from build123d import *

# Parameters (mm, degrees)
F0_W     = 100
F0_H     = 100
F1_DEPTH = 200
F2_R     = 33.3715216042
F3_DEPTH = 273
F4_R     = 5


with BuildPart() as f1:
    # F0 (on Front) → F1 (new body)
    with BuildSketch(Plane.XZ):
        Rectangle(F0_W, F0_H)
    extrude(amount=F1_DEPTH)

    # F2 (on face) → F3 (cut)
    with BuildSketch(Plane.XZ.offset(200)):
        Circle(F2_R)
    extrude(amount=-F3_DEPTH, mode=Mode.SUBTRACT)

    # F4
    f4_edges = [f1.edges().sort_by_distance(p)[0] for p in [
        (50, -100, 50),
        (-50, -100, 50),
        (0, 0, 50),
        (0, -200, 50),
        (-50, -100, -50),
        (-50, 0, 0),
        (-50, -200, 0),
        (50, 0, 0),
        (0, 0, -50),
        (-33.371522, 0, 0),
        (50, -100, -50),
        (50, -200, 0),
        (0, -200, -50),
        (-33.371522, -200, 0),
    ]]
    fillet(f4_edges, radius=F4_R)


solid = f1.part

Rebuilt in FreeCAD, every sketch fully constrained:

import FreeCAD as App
import Part
import Sketcher
from FreeCAD import Vector
Q = App.Units.Quantity


def add_polygon(sketch, points):
    """Adds a closed chain of lines whose ends are joined by coincident constraints."""
    first, n = sketch.GeometryCount, len(points)
    for a, b in zip(points, points[1:] + points[:1]):
        sketch.addGeometry(Part.LineSegment(App.Vector(*a, 0), App.Vector(*b, 0)), False)
    for i in range(n):
        sketch.addConstraint(Sketcher.Constraint("Coincident", first + i, 2, first + (i + 1) % n, 1))

doc = App.newDocument("Part")
params = doc.addObject("Spreadsheet::Sheet", "Params")
for row, (alias, value) in enumerate([
    ("sketch1_width", "100 mm"),
    ("pad1_length", "200 mm"),
    ("pocket1_length", "273 mm"),
    ("fillet_radius", "5 mm"),
], start=1):
    params.set(f"A{row}", alias)
    params.set(f"B{row}", "=" + value)
    params.setAlias(f"B{row}", alias)

body = doc.addObject("PartDesign::Body", "Body")

# Sketch on XZ plane
sketch1 = body.newObject("Sketcher::SketchObject", "Sketch")
sketch1.AttachmentSupport = (doc.getObject("XZ_Plane"), [""])
sketch1.MapMode = "FlatFace"
add_polygon(sketch1, [(-50, 50), (-50, -50), (50, -50), (50, 50)])  # lines 0-3
sketch1.addConstraint(Sketcher.Constraint("Vertical", 0))
sketch1.addConstraint(Sketcher.Constraint("Horizontal", 1))
sketch1.addConstraint(Sketcher.Constraint("Vertical", 2))
sketch1.addConstraint(Sketcher.Constraint("Horizontal", 3))
sketch1.addConstraint(Sketcher.Constraint("Symmetric", 0, 2, 2, 2, -1, 1))
sketch1.addConstraint(Sketcher.Constraint("Equal", 3, 0))
sketch1.addConstraint(Sketcher.Constraint("DistanceX", 1, 1, 1, 2, Q("100 mm")))
sketch1.setExpression("Constraints[10]", "Params.sketch1_width")
pad1 = body.newObject("PartDesign::Pad", "Pad")
pad1.Profile = sketch1
pad1.setExpression("Length", "Params.pad1_length")

# Sketch on XZ plane
sketch2 = body.newObject("Sketcher::SketchObject", "Sketch001")
sketch2.AttachmentSupport = (doc.getObject("XZ_Plane"), [""])
sketch2.MapMode = "FlatFace"
sketch2.AttachmentOffset = App.Placement(Vector(0, 0, 200), App.Rotation())
sketch2.addGeometry(Part.Circle(Vector(0, 0, 0), Vector(0, 0, 1), 33), False)
sketch2.addConstraint(Sketcher.Constraint("Coincident", 0, 3, -1, 1))
sketch2.addConstraint(Sketcher.Constraint("Diameter", 0, Q("66.743043 mm")))
pocket1 = body.newObject("PartDesign::Pocket", "Pocket")
pocket1.Profile = sketch2
pocket1.setExpression("Length", "Params.pocket1_length")
doc.recompute()

fillet = body.newObject("PartDesign::Fillet", "Fillet")
fillet.Base = (pocket1, ["Edge1"])
fillet.UseAllEdges = True
fillet.setExpression("Radius", "Params.fillet_radius")

doc.recompute()
